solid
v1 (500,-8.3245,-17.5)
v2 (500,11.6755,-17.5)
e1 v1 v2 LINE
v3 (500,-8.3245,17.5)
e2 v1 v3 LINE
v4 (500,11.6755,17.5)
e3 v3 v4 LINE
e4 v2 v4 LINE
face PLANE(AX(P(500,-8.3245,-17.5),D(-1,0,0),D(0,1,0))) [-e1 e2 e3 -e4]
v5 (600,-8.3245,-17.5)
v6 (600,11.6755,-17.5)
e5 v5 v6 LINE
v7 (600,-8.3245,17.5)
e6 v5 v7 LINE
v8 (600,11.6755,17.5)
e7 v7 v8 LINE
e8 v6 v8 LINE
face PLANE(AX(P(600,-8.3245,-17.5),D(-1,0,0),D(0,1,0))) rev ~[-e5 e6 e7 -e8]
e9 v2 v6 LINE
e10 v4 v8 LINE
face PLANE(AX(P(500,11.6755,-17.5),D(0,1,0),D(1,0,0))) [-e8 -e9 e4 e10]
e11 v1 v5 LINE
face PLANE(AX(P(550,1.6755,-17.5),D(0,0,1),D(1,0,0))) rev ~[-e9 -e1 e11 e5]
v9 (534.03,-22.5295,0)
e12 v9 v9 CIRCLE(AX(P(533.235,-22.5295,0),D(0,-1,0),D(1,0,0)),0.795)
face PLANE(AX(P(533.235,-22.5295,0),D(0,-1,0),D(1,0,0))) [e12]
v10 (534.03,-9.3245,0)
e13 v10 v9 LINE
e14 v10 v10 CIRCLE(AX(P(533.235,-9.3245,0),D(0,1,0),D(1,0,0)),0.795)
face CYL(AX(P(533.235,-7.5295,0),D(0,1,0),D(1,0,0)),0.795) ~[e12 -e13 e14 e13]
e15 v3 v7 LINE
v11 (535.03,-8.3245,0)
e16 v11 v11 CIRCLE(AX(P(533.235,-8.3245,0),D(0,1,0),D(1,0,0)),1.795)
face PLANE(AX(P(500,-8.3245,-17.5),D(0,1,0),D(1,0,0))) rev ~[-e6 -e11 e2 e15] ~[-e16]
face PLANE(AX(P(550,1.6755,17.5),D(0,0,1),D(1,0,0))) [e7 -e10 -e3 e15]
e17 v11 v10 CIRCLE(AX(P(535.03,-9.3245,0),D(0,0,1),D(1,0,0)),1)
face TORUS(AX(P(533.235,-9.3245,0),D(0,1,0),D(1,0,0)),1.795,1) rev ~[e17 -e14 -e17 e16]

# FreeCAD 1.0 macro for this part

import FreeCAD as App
import Part
import Sketcher


def edges_at(feature, points):
    """Names of the edges that pass closest to the given points."""
    edges = feature.Shape.Edges
    near = lambda p: min(range(len(edges)), key=lambda i: edges[i].distToShape(Part.Vertex(*p))[0])
    return sorted({f"Edge{near(p) + 1}" for p in points})


def add_polygon(sketch, points):
    """Adds a closed chain of lines whose ends are joined by coincident constraints."""
    first, n = sketch.GeometryCount, len(points)
    for a, b in zip(points, points[1:] + points[:1]):
        sketch.addGeometry(Part.LineSegment(App.Vector(*a, 0), App.Vector(*b, 0)), False)
    for i in range(n):
        sketch.addConstraint(Sketcher.Constraint("Coincident", first + i, 2, first + (i + 1) % n, 1))

doc = App.newDocument("Part")
body = doc.addObject("PartDesign::Body", "Body")

sketch1 = body.newObject("Sketcher::SketchObject", "Sketch")
sketch1.AttachmentSupport = (doc.getObject("XY_Plane"), [""])
sketch1.MapMode = "FlatFace"
sketch1.AttachmentOffset = App.Placement(App.Vector(0, 0, -17.5), App.Rotation())
add_polygon(sketch1, [(500, 12), (500, -8), (600, -8), (600, 12)])
sketch1.addConstraint(Sketcher.Constraint("Vertical", 0))
sketch1.addConstraint(Sketcher.Constraint("Horizontal", 1))
sketch1.addConstraint(Sketcher.Constraint("Vertical", 2))
sketch1.addConstraint(Sketcher.Constraint("Horizontal", 3))
sketch1.addConstraint(Sketcher.Constraint("DistanceX", 1, 1, 1, 2, 100.0))
sketch1.addConstraint(Sketcher.Constraint("DistanceY", 0, 2, 0, 1, 20.0))
sketch1.addConstraint(Sketcher.Constraint("DistanceX", -1, 1, 0, 2, 500.0))
sketch1.addConstraint(Sketcher.Constraint("DistanceY", 0, 2, -1, 1, 8.3245))
pad1 = body.newObject("PartDesign::Pad", "Pad")
pad1.Profile = sketch1
pad1.Length = 35
body2 = doc.addObject("PartDesign::Body", "Body001")

sketch2 = body2.newObject("Sketcher::SketchObject", "Sketch001")
sketch2.AttachmentSupport = (doc.getObject("XZ_Plane001"), [""])
sketch2.MapMode = "FlatFace"
sketch2.AttachmentOffset = App.Placement(App.Vector(0, 0, 7.5295), App.Rotation())
sketch2.addGeometry(Part.Circle(App.Vector(533.2, 0, 0), App.Vector(0, 0, 1), 0.8), False)
sketch2.addConstraint(Sketcher.Constraint("PointOnObject", 0, 3, -1))
sketch2.addConstraint(Sketcher.Constraint("Diameter", 0, 1.59))
sketch2.addConstraint(Sketcher.Constraint("DistanceX", -1, 1, 0, 3, 533.235))
pad2 = body2.newObject("PartDesign::Pad", "Pad001")
pad2.Profile = sketch2
pad2.Length = 15
doc.recompute()

boolean = body2.newObject("PartDesign::Boolean", "Boolean")
boolean.Type = "Fuse"
boolean.addObjects([body])
doc.recompute()

fillet = body2.newObject("PartDesign::Fillet", "Fillet")
fillet.Base = (boolean, edges_at(boolean, [(532.44, -8.325, 0)]))
fillet.Radius = 1

doc.recompute()
